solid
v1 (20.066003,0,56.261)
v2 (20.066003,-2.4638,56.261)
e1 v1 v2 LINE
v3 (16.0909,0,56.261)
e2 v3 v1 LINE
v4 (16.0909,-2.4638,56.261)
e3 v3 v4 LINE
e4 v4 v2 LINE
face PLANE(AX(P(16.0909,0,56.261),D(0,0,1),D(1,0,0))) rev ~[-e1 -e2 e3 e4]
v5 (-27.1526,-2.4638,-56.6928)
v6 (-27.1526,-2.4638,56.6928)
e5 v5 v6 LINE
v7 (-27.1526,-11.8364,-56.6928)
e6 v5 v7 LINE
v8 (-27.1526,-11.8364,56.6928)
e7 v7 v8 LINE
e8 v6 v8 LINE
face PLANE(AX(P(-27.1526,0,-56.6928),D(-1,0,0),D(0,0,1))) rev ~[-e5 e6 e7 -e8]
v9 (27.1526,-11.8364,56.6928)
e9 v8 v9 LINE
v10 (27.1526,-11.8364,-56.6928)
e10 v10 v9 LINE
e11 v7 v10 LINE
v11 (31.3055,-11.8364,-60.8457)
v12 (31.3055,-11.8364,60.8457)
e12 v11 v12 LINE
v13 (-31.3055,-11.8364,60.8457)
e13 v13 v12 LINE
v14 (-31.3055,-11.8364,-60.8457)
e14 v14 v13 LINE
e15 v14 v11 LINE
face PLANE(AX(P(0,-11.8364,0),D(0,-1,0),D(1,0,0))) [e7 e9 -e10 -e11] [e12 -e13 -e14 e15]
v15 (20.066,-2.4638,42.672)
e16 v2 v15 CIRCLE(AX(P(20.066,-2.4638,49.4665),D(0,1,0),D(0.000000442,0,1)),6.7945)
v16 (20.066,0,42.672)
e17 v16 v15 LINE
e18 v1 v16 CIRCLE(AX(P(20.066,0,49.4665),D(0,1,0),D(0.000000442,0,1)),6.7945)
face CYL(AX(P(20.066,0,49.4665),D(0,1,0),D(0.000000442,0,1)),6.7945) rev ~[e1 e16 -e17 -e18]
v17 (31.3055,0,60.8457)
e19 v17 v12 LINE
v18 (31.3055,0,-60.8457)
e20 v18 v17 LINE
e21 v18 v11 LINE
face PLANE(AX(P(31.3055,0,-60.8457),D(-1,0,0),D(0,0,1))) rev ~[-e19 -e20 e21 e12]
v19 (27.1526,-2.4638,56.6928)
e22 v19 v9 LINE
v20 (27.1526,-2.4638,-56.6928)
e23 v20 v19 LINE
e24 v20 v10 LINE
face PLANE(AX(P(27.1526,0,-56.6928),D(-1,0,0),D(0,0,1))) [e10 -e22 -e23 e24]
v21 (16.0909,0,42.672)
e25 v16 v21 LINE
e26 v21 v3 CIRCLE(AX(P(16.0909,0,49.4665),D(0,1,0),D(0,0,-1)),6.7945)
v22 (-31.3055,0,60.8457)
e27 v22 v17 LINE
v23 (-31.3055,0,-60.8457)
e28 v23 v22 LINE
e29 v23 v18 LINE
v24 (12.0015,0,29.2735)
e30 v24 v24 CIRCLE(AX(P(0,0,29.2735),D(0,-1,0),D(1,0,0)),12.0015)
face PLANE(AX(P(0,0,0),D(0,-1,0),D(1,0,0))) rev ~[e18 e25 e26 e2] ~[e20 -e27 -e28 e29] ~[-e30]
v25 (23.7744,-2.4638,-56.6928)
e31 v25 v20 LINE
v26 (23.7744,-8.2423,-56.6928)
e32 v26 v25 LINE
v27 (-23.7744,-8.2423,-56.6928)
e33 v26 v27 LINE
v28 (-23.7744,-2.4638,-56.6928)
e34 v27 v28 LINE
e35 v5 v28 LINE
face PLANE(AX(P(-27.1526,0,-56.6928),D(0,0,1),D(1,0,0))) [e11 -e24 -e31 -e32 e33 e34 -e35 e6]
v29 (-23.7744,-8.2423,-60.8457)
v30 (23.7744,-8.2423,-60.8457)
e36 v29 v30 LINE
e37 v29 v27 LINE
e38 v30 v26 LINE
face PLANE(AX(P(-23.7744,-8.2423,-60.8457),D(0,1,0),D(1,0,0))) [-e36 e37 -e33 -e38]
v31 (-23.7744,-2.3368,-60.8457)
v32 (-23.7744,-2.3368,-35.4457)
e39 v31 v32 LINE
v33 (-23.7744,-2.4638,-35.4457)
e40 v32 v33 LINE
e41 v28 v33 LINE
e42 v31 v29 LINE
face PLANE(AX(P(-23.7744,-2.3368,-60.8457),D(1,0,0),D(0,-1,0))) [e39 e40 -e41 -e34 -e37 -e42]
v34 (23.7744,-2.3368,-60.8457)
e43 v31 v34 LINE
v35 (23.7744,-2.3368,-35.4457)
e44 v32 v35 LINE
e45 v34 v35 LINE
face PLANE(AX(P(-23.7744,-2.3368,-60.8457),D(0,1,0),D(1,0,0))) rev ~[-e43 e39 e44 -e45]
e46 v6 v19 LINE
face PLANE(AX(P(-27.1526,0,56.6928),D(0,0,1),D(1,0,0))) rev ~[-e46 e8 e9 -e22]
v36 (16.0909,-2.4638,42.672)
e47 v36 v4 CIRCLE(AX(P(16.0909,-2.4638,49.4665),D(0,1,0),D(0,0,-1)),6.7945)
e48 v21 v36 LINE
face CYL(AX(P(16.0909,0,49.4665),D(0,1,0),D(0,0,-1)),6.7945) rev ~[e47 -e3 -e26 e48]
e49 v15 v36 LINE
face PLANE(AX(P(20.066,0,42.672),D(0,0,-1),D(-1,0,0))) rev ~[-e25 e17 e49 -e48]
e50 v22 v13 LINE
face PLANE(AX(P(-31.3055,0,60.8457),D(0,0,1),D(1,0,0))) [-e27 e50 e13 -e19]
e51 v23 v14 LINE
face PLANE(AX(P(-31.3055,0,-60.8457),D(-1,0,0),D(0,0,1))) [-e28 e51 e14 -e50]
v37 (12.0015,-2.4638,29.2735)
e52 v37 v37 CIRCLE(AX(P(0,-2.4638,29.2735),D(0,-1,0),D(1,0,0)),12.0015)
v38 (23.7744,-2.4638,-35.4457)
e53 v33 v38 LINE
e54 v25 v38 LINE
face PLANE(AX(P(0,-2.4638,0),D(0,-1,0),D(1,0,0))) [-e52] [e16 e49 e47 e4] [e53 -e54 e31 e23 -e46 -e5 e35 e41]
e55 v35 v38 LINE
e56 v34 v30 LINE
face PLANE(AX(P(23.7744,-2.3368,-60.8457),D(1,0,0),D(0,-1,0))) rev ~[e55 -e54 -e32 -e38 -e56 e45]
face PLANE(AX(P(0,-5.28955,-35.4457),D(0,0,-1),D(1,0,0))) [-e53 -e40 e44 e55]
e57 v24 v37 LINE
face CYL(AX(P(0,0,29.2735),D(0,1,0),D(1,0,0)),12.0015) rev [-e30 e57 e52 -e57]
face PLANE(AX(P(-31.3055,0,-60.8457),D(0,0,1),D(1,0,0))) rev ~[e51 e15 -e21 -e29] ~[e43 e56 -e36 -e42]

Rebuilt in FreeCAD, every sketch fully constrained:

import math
import FreeCAD as App
import Part
import Sketcher
Q = App.Units.Quantity

doc = App.newDocument("Part")
body = doc.addObject("PartDesign::Body", "Body")

sketch1 = body.newObject("Sketcher::SketchObject", "Sketch")
sketch1.AttachmentSupport = (doc.getObject("XZ_Plane"), [""])
sketch1.MapMode = "FlatFace"
sketch1.addGeometry([
    Part.LineSegment(App.Vector(-27.2, 56.7, 0), App.Vector(-27.2, -56.7, 0)),
    Part.LineSegment(App.Vector(-27.2, -56.7, 0), App.Vector(27.2, -56.7, 0)),
    Part.LineSegment(App.Vector(27.2, -56.7, 0), App.Vector(27.2, 56.7, 0)),
    Part.LineSegment(App.Vector(27.2, 56.7, 0), App.Vector(-27.2, 56.7, 0)),
    Part.Circle(App.Vector(0, 29.3, 0), App.Vector(0, 0, 1), 12),
    Part.LineSegment(App.Vector(20.1, 42.7, 0), App.Vector(16.1, 42.7, 0)),
    Part.ArcOfCircle(Part.Circle(App.Vector(16.1, 49.5, 0), App.Vector(0, 0, 1), 6.8), math.radians(90), math.radians(270)),
    Part.LineSegment(App.Vector(16.1, 56.3, 0), App.Vector(20.1, 56.3, 0)),
    Part.ArcOfCircle(Part.Circle(App.Vector(20.1, 49.5, 0), App.Vector(0, 0, 1), 6.8), math.radians(-90), math.radians(90)),
], False)
sketch1.addConstraint([
    Sketcher.Constraint("Coincident", 0, 2, 1, 1),
    Sketcher.Constraint("Coincident", 1, 2, 2, 1),
    Sketcher.Constraint("Coincident", 2, 2, 3, 1),
    Sketcher.Constraint("Coincident", 3, 2, 0, 1),
    Sketcher.Constraint("Tangent", 5, 2, 6, 2),
    Sketcher.Constraint("Tangent", 6, 1, 7, 1),
    Sketcher.Constraint("Tangent", 7, 2, 8, 2),
    Sketcher.Constraint("Tangent", 8, 1, 5, 1),
    Sketcher.Constraint("Vertical", 0),
    Sketcher.Constraint("Horizontal", 1),
    Sketcher.Constraint("Vertical", 2),
    Sketcher.Constraint("Horizontal", 3),
    Sketcher.Constraint("Horizontal", 5),
    Sketcher.Constraint("Horizontal", 7),
    Sketcher.Constraint("Symmetric", 0, 2, 2, 2, -1, 1),
    Sketcher.Constraint("PointOnObject", 4, 3, -2),
    Sketcher.Constraint("Diameter", 4, Q("0.945 in")),
    Sketcher.Constraint("Radius", 6, Q("0.2675 in")),
    Sketcher.Constraint("DistanceX", 1, 1, 1, 2, Q("2.138 in")),
    Sketcher.Constraint("DistanceY", 0, 2, 0, 1, Q("4.464 in")),
    Sketcher.Constraint("DistanceX", -1, 1, 8, 3, Q("0.79 in")),
    Sketcher.Constraint("DistanceY", -1, 1, 5, 2, Q("1.68 in")),
    Sketcher.Constraint("DistanceX", 5, 2, 5, 1, Q("0.1565 in")),
    Sketcher.Constraint("DistanceY", 4, 3, 6, 3, Q("0.795 in")),
])
pad1 = body.newObject("PartDesign::Pad", "Pad")
pad1.Profile = sketch1
pad1.Length = Q("0.097 in")

sketch2 = body.newObject("Sketcher::SketchObject", "Sketch001")
sketch2.AttachmentSupport = (doc.getObject("XZ_Plane"), [""])
sketch2.MapMode = "FlatFace"
sketch2.addGeometry([
    Part.LineSegment(App.Vector(-31, 61, 0), App.Vector(-31, -61, 0)),
    Part.LineSegment(App.Vector(-31, -61, 0), App.Vector(31, -61, 0)),
    Part.LineSegment(App.Vector(31, -61, 0), App.Vector(31, 61, 0)),
    Part.LineSegment(App.Vector(31, 61, 0), App.Vector(-31, 61, 0)),
    Part.LineSegment(App.Vector(27, -57, 0), App.Vector(-27, -57, 0)),
    Part.LineSegment(App.Vector(-27, -57, 0), App.Vector(-27, 57, 0)),
    Part.LineSegment(App.Vector(-27, 57, 0), App.Vector(27, 57, 0)),
    Part.LineSegment(App.Vector(27, 57, 0), App.Vector(27, -57, 0)),
], False)
sketch2.addConstraint([
    Sketcher.Constraint("Coincident", 0, 2, 1, 1),
    Sketcher.Constraint("Coincident", 1, 2, 2, 1),
    Sketcher.Constraint("Coincident", 2, 2, 3, 1),
    Sketcher.Constraint("Coincident", 3, 2, 0, 1),
    Sketcher.Constraint("Coincident", 4, 2, 5, 1),
    Sketcher.Constraint("Coincident", 5, 2, 6, 1),
    Sketcher.Constraint("Coincident", 6, 2, 7, 1),
    Sketcher.Constraint("Coincident", 7, 2, 4, 1),
    Sketcher.Constraint("Vertical", 0),
    Sketcher.Constraint("Horizontal", 1),
    Sketcher.Constraint("Vertical", 2),
    Sketcher.Constraint("Horizontal", 3),
    Sketcher.Constraint("Horizontal", 4),
    Sketcher.Constraint("Vertical", 5),
    Sketcher.Constraint("Horizontal", 6),
    Sketcher.Constraint("Vertical", 7),
    Sketcher.Constraint("Symmetric", 0, 2, 2, 2, -1, 1),
    Sketcher.Constraint("Symmetric", 4, 2, 6, 2, -1, 1),
    Sketcher.Constraint("DistanceX", 1, 1, 1, 2, Q("2.465 in")),
    Sketcher.Constraint("DistanceX", 4, 2, 4, 1, Q("2.138 in")),
    Sketcher.Constraint("DistanceY", 0, 2, 0, 1, Q("4.791 in")),
    Sketcher.Constraint("DistanceY", 5, 1, 5, 2, Q("4.464 in")),
])
pad2 = body.newObject("PartDesign::Pad", "Pad001")
pad2.Profile = sketch2
pad2.Length = Q("0.466 in")

sketch3 = body.newObject("Sketcher::SketchObject", "Sketch002")
sketch3.AttachmentSupport = (doc.getObject("XY_Plane"), [""])
sketch3.MapMode = "FlatFace"
sketch3.AttachmentOffset = App.Placement(App.Vector(0, 0, -2.3955 * 25.4), App.Rotation())
sketch3.addGeometry([
    Part.LineSegment(App.Vector(-24, -8, 0), App.Vector(-24, -2, 0)),
    Part.LineSegment(App.Vector(-24, -2, 0), App.Vector(24, -2, 0)),
    Part.LineSegment(App.Vector(24, -2, 0), App.Vector(24, -8, 0)),
    Part.LineSegment(App.Vector(24, -8, 0), App.Vector(-24, -8, 0)),
], False)
sketch3.addConstraint([
    Sketcher.Constraint("Coincident", 0, 2, 1, 1),
    Sketcher.Constraint("Coincident", 1, 2, 2, 1),
    Sketcher.Constraint("Coincident", 2, 2, 3, 1),
    Sketcher.Constraint("Coincident", 3, 2, 0, 1),
    Sketcher.Constraint("Vertical", 0),
    Sketcher.Constraint("Horizontal", 1),
    Sketcher.Constraint("Vertical", 2),
    Sketcher.Constraint("Horizontal", 3),
    Sketcher.Constraint("DistanceX", 1, 1, 1, 2, Q("1.872 in")),
    Sketcher.Constraint("DistanceY", 0, 1, 0, 2, Q("0.2325 in")),
    Sketcher.Constraint("DistanceX", 0, 2, -1, 1, Q("0.936 in")),
    Sketcher.Constraint("DistanceY", 0, 2, -1, 1, Q("0.092 in")),
])
pocket1 = body.newObject("PartDesign::Pocket", "Pocket")
pocket1.Profile = sketch3
pocket1.Length = Q("1 in")
pocket1.Reversed = True

doc.recompute()
